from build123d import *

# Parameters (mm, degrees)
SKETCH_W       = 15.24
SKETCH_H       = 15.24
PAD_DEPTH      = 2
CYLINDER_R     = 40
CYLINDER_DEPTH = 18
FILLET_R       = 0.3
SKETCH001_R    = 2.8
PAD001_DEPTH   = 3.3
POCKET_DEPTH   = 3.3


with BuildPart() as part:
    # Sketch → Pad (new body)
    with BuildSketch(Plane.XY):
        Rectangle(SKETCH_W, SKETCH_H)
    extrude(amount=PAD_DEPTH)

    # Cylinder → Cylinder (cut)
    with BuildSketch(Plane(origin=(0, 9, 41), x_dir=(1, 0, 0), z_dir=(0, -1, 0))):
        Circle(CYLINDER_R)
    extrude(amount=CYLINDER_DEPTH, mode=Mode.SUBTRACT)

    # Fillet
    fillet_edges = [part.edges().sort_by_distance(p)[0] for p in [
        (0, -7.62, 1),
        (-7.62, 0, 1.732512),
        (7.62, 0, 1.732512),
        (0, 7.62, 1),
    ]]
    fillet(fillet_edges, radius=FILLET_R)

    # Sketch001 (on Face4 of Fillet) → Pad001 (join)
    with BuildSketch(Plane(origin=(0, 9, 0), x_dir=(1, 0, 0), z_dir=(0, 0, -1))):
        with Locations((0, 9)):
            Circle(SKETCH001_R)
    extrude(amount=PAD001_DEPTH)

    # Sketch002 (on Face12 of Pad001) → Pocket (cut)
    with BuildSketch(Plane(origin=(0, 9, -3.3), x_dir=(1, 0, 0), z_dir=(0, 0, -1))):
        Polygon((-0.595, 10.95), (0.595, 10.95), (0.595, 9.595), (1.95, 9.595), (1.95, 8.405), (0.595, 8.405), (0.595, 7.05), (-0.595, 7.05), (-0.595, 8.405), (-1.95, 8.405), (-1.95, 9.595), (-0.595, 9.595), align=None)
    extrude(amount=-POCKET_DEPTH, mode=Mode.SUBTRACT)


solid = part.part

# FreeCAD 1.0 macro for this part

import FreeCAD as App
import Part
import Sketcher
from FreeCAD import Vector
Q = App.Units.Quantity


def edges_at(feature, points):
    """Names of the edges that pass closest to the given points."""
    edges = feature.Shape.Edges
    near = lambda p: min(range(len(edges)), key=lambda i: edges[i].distToShape(Part.Vertex(*p))[0])
    return sorted({f"Edge{near(p) + 1}" for p in points})

doc = App.newDocument("Part")
body = doc.addObject("PartDesign::Body", "Body")

sketch1 = body.newObject("Sketcher::SketchObject", "Sketch")
sketch1.AttachmentSupport = (doc.getObject("XY_Plane"), [""])
sketch1.MapMode = "FlatFace"
sketch1.addGeometry(Part.LineSegment(Vector(-8, 8, 0), Vector(-8, -8, 0)), False)
sketch1.addGeometry(Part.LineSegment(Vector(-8, -8, 0), Vector(8, -8, 0)), False)
sketch1.addGeometry(Part.LineSegment(Vector(8, -8, 0), Vector(8, 8, 0)), False)
sketch1.addGeometry(Part.LineSegment(Vector(8, 8, 0), Vector(-8, 8, 0)), False)
sketch1.addConstraint(Sketcher.Constraint("Coincident", 0, 2, 1, 1))
sketch1.addConstraint(Sketcher.Constraint("Coincident", 1, 2, 2, 1))
sketch1.addConstraint(Sketcher.Constraint("Coincident", 2, 2, 3, 1))
sketch1.addConstraint(Sketcher.Constraint("Coincident", 3, 2, 0, 1))
sketch1.addConstraint(Sketcher.Constraint("Vertical", 0))
sketch1.addConstraint(Sketcher.Constraint("Horizontal", 1))
sketch1.addConstraint(Sketcher.Constraint("Vertical", 2))
sketch1.addConstraint(Sketcher.Constraint("Horizontal", 3))
sketch1.addConstraint(Sketcher.Constraint("Symmetric", 0, 2, 2, 2, -1, 1))
sketch1.addConstraint(Sketcher.Constraint("Equal", 3, 0))
sketch1.addConstraint(Sketcher.Constraint("DistanceX", 1, 1, 1, 2, Q("15.24 mm")))
pad1 = body.newObject("PartDesign::Pad", "Pad")
pad1.Profile = sketch1
pad1.Length = 2

sketch2 = body.newObject("Sketcher::SketchObject", "Sketch001")
sketch2.AttachmentSupport = (doc.getObject("XZ_Plane"), [""])
sketch2.MapMode = "FlatFace"
sketch2.AttachmentOffset = App.Placement(Vector(0, 0, -9), App.Rotation())
sketch2.addGeometry(Part.Circle(Vector(0, 41, 0), Vector(0, 0, 1), 40), False)
sketch2.addConstraint(Sketcher.Constraint("PointOnObject", 0, 3, -2))
sketch2.addConstraint(Sketcher.Constraint("Diameter", 0, Q("80 mm")))
sketch2.addConstraint(Sketcher.Constraint("DistanceY", -1, 1, 0, 3, Q("41 mm")))
pocket1 = body.newObject("PartDesign::Pocket", "Pocket")
pocket1.Profile = sketch2
pocket1.Length = 18
pocket1.Reversed = True
doc.recompute()

fillet = body.newObject("PartDesign::Fillet", "Fillet")
fillet.Base = (pocket1, edges_at(pocket1, [
    (0, -7.62, 1),
    (-7.62, 0, 1.733),
    (7.62, 0, 1.733),
    (0, 7.62, 1),
]))
fillet.Radius = 0.3

sketch3 = body.newObject("Sketcher::SketchObject", "Sketch002")
sketch3.AttachmentSupport = (doc.getObject("XY_Plane"), [""])
sketch3.MapMode = "FlatFace"
sketch3.addGeometry(Part.Circle(Vector(0, 0, 0), Vector(0, 0, 1), 2.8), False)
sketch3.addConstraint(Sketcher.Constraint("Coincident", 0, 3, -1, 1))
sketch3.addConstraint(Sketcher.Constraint("Diameter", 0, Q("5.6 mm")))
pad2 = body.newObject("PartDesign::Pad", "Pad001")
pad2.Profile = sketch3
pad2.Length = 3.3
pad2.Reversed = True

sketch4 = body.newObject("Sketcher::SketchObject", "Sketch003")
sketch4.AttachmentSupport = (doc.getObject("XY_Plane"), [""])
sketch4.MapMode = "FlatFace"
sketch4.AttachmentOffset = App.Placement(Vector(0, 0, -3.3), App.Rotation())
sketch4.addGeometry(Part.LineSegment(Vector(0.6, -1.9, 0), Vector(-0.6, -1.9, 0)), False)
sketch4.addGeometry(Part.LineSegment(Vector(-0.6, -1.9, 0), Vector(-0.6, -0.6, 0)), False)
sketch4.addGeometry(Part.LineSegment(Vector(-0.6, -0.6, 0), Vector(-1.9, -0.6, 0)), False)
sketch4.addGeometry(Part.LineSegment(Vector(-1.9, -0.6, 0), Vector(-1.9, 0.6, 0)), False)
sketch4.addGeometry(Part.LineSegment(Vector(-1.9, 0.6, 0), Vector(-0.6, 0.6, 0)), False)
sketch4.addGeometry(Part.LineSegment(Vector(-0.6, 0.6, 0), Vector(-0.6, 1.9, 0)), False)
sketch4.addGeometry(Part.LineSegment(Vector(-0.6, 1.9, 0), Vector(0.6, 1.9, 0)), False)
sketch4.addGeometry(Part.LineSegment(Vector(0.6, 1.9, 0), Vector(0.6, 0.6, 0)), False)
sketch4.addGeometry(Part.LineSegment(Vector(0.6, 0.6, 0), Vector(1.9, 0.6, 0)), False)
sketch4.addGeometry(Part.LineSegment(Vector(1.9, 0.6, 0), Vector(1.9, -0.6, 0)), False)
sketch4.addGeometry(Part.LineSegment(Vector(1.9, -0.6, 0), Vector(0.6, -0.6, 0)), False)
sketch4.addGeometry(Part.LineSegment(Vector(0.6, -0.6, 0), Vector(0.6, -1.9, 0)), False)
sketch4.addConstraint(Sketcher.Constraint("Coincident", 0, 2, 1, 1))
sketch4.addConstraint(Sketcher.Constraint("Coincident", 1, 2, 2, 1))
sketch4.addConstraint(Sketcher.Constraint("Coincident", 2, 2, 3, 1))
sketch4.addConstraint(Sketcher.Constraint("Coincident", 3, 2, 4, 1))
sketch4.addConstraint(Sketcher.Constraint("Coincident", 4, 2, 5, 1))
sketch4.addConstraint(Sketcher.Constraint("Coincident", 5, 2, 6, 1))
sketch4.addConstraint(Sketcher.Constraint("Coincident", 6, 2, 7, 1))
sketch4.addConstraint(Sketcher.Constraint("Coincident", 7, 2, 8, 1))
sketch4.addConstraint(Sketcher.Constraint("Coincident", 8, 2, 9, 1))
sketch4.addConstraint(Sketcher.Constraint("Coincident", 9, 2, 10, 1))
sketch4.addConstraint(Sketcher.Constraint("Coincident", 10, 2, 11, 1))
sketch4.addConstraint(Sketcher.Constraint("Coincident", 11, 2, 0, 1))
sketch4.addConstraint(Sketcher.Constraint("Horizontal", 0))
sketch4.addConstraint(Sketcher.Constraint("Vertical", 1))
sketch4.addConstraint(Sketcher.Constraint("Horizontal", 2))
sketch4.addConstraint(Sketcher.Constraint("Vertical", 3))
sketch4.addConstraint(Sketcher.Constraint("Horizontal", 4))
sketch4.addConstraint(Sketcher.Constraint("Vertical", 5))
sketch4.addConstraint(Sketcher.Constraint("Horizontal", 6))
sketch4.addConstraint(Sketcher.Constraint("Vertical", 7))
sketch4.addConstraint(Sketcher.Constraint("Horizontal", 8))
sketch4.addConstraint(Sketcher.Constraint("Vertical", 9))
sketch4.addConstraint(Sketcher.Constraint("Horizontal", 10))
sketch4.addConstraint(Sketcher.Constraint("Vertical", 11))
sketch4.addConstraint(Sketcher.Constraint("Symmetric", 0, 2, 6, 2, -1, 1))
sketch4.addConstraint(Sketcher.Constraint("Symmetric", 2, 2, 8, 2, -1, 1))
sketch4.addConstraint(Sketcher.Constraint("Symmetric", 4, 2, 10, 2, -1, 1))
sketch4.addConstraint(Sketcher.Constraint("Symmetric", 4, 2, 7, 2, -2))
sketch4.addConstraint(Sketcher.Constraint("Equal", 10, 1))
sketch4.addConstraint(Sketcher.Constraint("Equal", 6, 3))
sketch4.addConstraint(Sketcher.Constraint("DistanceX", 0, 2, 0, 1, Q("1.19 mm")))
sketch4.addConstraint(Sketcher.Constraint("DistanceY", 0, 2, 5, 2, Q("3.9 mm")))
pocket2 = body.newObject("PartDesign::Pocket", "Pocket001")
pocket2.Profile = sketch4
pocket2.Length = 3.3
pocket2.Reversed = True

doc.recompute()
